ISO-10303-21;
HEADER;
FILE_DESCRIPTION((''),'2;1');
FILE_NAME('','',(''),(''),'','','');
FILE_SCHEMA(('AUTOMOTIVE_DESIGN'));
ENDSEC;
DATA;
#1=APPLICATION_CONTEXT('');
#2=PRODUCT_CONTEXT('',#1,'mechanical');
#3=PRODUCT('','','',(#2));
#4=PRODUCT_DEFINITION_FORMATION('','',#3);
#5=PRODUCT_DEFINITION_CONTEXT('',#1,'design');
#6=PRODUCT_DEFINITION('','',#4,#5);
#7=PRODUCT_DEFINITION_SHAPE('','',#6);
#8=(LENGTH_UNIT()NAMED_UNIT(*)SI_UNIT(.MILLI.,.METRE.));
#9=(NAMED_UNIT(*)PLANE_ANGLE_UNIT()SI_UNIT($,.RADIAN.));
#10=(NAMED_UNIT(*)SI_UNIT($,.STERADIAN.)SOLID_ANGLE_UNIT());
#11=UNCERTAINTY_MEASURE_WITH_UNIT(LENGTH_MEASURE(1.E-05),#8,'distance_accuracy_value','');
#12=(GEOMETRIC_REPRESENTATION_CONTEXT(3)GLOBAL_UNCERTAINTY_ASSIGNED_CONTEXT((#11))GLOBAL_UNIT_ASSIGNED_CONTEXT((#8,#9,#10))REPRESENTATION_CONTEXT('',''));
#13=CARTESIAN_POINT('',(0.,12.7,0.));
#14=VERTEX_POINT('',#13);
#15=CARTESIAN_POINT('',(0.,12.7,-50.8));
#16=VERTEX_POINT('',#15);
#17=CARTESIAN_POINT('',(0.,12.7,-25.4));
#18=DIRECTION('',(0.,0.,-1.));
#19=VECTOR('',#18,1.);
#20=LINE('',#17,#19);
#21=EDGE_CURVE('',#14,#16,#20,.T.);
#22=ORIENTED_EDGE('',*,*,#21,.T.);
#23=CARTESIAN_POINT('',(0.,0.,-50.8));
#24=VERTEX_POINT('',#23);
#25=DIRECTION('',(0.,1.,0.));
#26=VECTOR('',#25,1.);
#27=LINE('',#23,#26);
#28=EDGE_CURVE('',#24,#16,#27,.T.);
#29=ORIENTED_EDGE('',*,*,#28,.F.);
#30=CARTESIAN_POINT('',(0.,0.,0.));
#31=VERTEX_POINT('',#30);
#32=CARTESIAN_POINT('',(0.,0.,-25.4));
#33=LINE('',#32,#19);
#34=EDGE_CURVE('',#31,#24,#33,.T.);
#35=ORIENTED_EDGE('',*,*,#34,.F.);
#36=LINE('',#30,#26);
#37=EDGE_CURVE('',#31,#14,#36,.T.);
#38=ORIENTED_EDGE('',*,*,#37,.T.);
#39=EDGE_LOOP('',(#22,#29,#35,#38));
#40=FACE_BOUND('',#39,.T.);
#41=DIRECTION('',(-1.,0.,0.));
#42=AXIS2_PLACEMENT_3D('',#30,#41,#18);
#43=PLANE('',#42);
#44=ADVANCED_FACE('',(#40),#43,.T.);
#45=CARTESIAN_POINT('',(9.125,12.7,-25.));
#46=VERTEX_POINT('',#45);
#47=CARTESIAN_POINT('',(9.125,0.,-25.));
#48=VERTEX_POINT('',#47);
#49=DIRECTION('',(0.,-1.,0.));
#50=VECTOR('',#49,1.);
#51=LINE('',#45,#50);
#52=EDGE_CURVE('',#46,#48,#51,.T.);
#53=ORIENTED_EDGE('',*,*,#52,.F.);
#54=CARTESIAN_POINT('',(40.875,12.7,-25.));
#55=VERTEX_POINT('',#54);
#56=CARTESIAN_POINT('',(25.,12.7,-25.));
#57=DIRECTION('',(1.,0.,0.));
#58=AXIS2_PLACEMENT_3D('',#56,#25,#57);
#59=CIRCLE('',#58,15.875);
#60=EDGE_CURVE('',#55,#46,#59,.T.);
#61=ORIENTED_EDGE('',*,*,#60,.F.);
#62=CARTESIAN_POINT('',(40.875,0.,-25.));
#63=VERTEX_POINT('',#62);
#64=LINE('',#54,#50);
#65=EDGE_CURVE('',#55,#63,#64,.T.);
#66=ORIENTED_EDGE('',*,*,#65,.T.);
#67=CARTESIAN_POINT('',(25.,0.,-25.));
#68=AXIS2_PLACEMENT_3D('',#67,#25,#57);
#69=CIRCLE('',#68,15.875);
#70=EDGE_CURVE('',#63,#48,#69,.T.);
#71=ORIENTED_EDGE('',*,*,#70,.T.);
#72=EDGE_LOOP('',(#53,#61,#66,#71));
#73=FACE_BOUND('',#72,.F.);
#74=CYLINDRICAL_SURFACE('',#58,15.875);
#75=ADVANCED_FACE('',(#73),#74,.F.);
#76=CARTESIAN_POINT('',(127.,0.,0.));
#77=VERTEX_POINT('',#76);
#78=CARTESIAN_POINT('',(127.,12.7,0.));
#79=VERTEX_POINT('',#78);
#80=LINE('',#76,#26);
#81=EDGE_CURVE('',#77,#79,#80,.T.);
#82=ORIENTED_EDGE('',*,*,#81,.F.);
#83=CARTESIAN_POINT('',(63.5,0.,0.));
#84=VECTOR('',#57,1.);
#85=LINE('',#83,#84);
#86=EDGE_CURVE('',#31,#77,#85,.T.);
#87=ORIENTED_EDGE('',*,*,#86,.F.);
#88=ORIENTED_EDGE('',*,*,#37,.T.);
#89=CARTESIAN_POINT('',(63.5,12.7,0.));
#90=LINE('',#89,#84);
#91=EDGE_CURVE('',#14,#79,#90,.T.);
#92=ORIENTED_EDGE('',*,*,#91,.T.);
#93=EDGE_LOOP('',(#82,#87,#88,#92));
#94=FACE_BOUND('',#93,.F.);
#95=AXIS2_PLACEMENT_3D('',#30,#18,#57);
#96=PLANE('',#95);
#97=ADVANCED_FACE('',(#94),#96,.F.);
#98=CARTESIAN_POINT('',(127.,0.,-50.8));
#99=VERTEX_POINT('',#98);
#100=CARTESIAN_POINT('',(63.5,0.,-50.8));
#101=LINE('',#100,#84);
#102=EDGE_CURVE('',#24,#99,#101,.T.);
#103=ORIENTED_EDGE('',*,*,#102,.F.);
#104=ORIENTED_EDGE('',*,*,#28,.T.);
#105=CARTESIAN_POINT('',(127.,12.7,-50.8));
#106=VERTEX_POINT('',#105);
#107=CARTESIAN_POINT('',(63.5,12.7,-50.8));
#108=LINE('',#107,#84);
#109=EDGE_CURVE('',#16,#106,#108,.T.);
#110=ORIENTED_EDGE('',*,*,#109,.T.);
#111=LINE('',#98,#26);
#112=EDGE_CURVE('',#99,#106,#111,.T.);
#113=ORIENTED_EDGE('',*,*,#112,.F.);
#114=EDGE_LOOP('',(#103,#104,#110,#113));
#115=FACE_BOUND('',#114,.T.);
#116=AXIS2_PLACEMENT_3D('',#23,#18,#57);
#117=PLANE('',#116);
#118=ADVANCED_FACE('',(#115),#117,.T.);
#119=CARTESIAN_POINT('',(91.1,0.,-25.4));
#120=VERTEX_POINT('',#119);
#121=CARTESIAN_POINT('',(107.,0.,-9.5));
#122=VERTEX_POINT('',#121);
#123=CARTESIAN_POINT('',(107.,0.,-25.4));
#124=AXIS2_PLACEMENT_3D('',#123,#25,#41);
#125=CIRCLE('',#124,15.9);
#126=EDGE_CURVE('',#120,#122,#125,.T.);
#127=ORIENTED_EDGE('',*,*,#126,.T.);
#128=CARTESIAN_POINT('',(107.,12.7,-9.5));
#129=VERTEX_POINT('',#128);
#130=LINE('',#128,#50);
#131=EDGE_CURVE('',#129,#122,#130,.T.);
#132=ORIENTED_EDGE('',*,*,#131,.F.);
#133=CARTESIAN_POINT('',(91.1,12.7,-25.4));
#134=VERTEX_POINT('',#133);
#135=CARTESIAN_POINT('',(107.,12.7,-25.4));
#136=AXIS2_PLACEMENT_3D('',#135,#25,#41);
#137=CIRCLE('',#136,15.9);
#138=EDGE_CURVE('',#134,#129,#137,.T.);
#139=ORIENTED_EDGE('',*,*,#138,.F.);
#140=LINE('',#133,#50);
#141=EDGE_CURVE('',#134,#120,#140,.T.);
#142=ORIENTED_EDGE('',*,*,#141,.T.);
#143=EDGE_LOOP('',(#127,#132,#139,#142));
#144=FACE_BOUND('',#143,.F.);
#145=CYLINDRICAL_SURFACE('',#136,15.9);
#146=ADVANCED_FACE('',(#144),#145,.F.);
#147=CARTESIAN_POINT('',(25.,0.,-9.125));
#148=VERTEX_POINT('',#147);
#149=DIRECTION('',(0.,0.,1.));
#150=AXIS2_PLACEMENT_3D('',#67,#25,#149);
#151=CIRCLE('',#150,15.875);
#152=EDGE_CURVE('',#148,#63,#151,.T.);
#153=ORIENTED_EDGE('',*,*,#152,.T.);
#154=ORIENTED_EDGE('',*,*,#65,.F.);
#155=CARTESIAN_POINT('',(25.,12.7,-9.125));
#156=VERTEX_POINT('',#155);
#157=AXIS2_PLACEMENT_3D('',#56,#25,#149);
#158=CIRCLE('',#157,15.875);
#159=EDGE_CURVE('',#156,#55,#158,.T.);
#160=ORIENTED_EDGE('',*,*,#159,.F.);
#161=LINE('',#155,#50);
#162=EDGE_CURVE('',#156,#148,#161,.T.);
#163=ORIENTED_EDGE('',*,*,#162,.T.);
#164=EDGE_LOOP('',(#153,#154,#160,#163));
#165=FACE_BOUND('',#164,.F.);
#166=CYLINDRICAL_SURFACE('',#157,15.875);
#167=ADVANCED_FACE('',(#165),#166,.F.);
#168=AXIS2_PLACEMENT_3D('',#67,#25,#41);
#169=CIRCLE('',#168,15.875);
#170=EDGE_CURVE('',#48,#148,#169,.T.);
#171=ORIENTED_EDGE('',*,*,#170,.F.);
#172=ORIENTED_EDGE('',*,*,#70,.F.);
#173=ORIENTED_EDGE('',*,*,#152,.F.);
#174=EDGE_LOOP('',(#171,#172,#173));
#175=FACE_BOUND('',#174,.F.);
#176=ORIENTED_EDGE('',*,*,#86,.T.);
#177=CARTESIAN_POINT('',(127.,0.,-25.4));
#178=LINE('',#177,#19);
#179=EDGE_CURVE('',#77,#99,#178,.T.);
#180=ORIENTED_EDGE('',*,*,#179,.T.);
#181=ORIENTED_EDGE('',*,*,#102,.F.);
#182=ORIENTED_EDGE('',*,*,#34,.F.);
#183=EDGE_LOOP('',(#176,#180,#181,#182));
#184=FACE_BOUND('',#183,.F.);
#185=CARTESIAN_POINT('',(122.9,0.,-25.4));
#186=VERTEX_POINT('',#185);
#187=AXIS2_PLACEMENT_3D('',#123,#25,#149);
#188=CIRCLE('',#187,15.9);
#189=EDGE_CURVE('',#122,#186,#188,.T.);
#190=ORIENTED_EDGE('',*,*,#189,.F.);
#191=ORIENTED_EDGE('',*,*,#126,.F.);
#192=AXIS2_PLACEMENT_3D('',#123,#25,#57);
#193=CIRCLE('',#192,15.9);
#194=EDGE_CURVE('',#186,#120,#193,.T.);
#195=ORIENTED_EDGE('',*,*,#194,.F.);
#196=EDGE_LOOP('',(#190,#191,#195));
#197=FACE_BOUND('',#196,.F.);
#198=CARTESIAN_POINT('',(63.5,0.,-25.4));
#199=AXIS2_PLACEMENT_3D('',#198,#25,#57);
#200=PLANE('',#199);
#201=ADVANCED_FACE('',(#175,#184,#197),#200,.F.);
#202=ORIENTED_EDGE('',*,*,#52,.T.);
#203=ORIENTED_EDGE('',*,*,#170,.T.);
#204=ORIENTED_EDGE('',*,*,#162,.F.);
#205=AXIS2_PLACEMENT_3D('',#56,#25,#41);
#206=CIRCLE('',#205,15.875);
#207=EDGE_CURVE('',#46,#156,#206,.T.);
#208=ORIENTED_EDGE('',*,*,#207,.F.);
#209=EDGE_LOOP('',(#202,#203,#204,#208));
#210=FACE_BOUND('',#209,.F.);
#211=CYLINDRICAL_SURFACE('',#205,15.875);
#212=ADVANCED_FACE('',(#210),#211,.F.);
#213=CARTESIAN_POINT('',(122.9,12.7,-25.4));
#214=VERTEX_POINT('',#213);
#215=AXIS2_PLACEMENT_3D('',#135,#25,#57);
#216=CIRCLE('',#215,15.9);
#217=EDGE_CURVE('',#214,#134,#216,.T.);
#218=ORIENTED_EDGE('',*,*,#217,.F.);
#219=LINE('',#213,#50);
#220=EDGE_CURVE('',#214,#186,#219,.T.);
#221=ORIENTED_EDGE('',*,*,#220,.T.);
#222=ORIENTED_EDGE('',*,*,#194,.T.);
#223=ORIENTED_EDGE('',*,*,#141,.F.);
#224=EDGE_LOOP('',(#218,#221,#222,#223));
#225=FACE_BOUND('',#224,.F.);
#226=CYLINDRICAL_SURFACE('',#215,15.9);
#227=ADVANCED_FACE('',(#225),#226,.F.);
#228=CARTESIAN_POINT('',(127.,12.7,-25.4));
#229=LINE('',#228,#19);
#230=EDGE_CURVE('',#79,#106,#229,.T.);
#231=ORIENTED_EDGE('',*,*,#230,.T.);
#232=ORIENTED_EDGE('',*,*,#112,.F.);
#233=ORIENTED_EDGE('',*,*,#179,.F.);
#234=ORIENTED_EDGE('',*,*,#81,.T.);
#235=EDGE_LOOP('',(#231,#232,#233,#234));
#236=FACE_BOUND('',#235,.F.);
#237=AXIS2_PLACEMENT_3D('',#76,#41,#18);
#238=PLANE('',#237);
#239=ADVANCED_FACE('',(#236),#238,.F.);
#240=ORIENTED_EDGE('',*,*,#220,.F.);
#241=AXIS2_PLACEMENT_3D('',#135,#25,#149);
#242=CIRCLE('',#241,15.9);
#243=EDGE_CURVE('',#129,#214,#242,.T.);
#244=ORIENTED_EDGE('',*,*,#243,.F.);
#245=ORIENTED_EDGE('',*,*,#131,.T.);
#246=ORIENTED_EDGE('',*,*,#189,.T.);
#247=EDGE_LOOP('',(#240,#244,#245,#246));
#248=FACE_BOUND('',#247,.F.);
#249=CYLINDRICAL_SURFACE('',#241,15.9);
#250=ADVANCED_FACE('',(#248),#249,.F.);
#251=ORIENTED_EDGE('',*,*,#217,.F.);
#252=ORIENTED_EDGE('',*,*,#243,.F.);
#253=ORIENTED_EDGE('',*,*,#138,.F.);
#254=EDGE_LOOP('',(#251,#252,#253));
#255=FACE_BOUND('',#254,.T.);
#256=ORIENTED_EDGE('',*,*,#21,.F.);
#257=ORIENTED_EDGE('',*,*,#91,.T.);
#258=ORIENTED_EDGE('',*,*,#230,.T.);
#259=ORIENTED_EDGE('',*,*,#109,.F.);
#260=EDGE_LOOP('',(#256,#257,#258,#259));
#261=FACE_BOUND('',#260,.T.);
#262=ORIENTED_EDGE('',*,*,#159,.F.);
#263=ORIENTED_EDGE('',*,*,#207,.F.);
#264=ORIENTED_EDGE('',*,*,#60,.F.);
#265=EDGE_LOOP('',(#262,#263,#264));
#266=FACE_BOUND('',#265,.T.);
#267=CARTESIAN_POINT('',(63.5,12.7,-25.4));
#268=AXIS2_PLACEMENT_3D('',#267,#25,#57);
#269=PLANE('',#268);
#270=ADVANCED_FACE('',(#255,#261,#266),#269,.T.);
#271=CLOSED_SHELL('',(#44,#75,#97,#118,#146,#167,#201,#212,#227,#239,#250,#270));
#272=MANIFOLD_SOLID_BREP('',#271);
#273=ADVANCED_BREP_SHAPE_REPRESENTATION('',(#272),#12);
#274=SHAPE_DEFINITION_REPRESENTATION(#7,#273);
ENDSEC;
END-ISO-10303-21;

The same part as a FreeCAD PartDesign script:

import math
import FreeCAD as App
import Part
import Sketcher
from FreeCAD import Vector
Q = App.Units.Quantity


def add_polygon(sketch, points):
    """Adds a closed chain of lines whose ends are joined by coincident constraints."""
    first, n = sketch.GeometryCount, len(points)
    for a, b in zip(points, points[1:] + points[:1]):
        sketch.addGeometry(Part.LineSegment(App.Vector(*a, 0), App.Vector(*b, 0)), False)
    for i in range(n):
        sketch.addConstraint(Sketcher.Constraint("Coincident", first + i, 2, first + (i + 1) % n, 1))

doc = App.newDocument("Part")
params = doc.addObject("Spreadsheet::Sheet", "Params")
for row, (alias, value) in enumerate([
    ("sketch1_width", "5 in"),
    ("sketch1_height", "2 in"),
    ("pad1_length", "0.5 in"),
    ("sketch2_radius", "0.625 in"),
    ("pocket1_length", "0.5 in"),
], start=1):
    params.set(f"A{row}", alias)
    params.set(f"B{row}", "=" + value)
    params.setAlias(f"B{row}", alias)

body = doc.addObject("PartDesign::Body", "Body")

sketch1 = body.newObject("Sketcher::SketchObject", "Sketch")
sketch1.AttachmentSupport = (doc.getObject("XZ_Plane"), [""])
sketch1.MapMode = "FlatFace"
add_polygon(sketch1, [(0, -51), (0, 0), (127, 0), (127, -51)])
sketch1.addConstraint([
    Sketcher.Constraint("Vertical", 0),
    Sketcher.Constraint("Horizontal", 1),
    Sketcher.Constraint("Vertical", 2),
    Sketcher.Constraint("Horizontal", 3),
    Sketcher.Constraint("Coincident", 0, 2, -1, 1),
    Sketcher.Constraint("DistanceX", 1, 1, 1, 2, Q("5 in")),
    Sketcher.Constraint("DistanceY", 0, 1, 0, 2, Q("2 in")),
])
sketch1.setExpression("Constraints[9]", "Params.sketch1_width")
sketch1.setExpression("Constraints[10]", "Params.sketch1_height")
pad1 = body.newObject("PartDesign::Pad", "Pad")
pad1.Profile = sketch1
pad1.setExpression("Length", "Params.pad1_length")
pad1.Reversed = True

sketch2 = body.newObject("Sketcher::SketchObject", "Sketch001")
sketch2.AttachmentSupport = (doc.getObject("XZ_Plane"), [""])
sketch2.MapMode = "FlatFace"
sketch2.AttachmentOffset = App.Placement(Vector(0, 0, -0.5 * 25.4), App.Rotation())
sketch2.addGeometry([
    Part.ArcOfCircle(Part.Circle(Vector(25, -25, 0), Vector(0, 0, 1), 16), math.radians(90), math.radians(180)),
    Part.ArcOfCircle(Part.Circle(Vector(25, -25, 0), Vector(0, 0, 1), 16), math.radians(0), math.radians(90)),
    Part.ArcOfCircle(Part.Circle(Vector(25, -25, 0), Vector(0, 0, 1), 16), math.radians(180), math.radians(360)),
], False)
sketch2.addConstraint([
    Sketcher.Constraint("Tangent", 0, 1, 1, 2),
    Sketcher.Constraint("Tangent", 1, 1, 2, 2),
    Sketcher.Constraint("Tangent", 2, 1, 0, 2),
    Sketcher.Constraint("Horizontal", 2, 3, 1, 1),
    Sketcher.Constraint("Horizontal", 1, 1, 2, 1),
    Sketcher.Constraint("Vertical", 2, 3, 0, 1),
    Sketcher.Constraint("Radius", 0, Q("0.625 in")),
    Sketcher.Constraint("DistanceX", -1, 1, 0, 3, 25.0),
    Sketcher.Constraint("DistanceY", 0, 3, -1, 1, 25.0),
])
sketch2.setExpression("Constraints[6]", "Params.sketch2_radius")
pocket1 = body.newObject("PartDesign::Pocket", "Pocket")
pocket1.Profile = sketch2
pocket1.setExpression("Length", "Params.pocket1_length")
pocket1.Reversed = True

sketch3 = body.newObject("Sketcher::SketchObject", "Sketch002")
sketch3.AttachmentSupport = (doc.getObject("XZ_Plane"), [""])
sketch3.MapMode = "FlatFace"
sketch3.AttachmentOffset = App.Placement(Vector(0, 0, -0.5 * 25.4), App.Rotation())
sketch3.addGeometry([
    Part.ArcOfCircle(Part.Circle(Vector(107, -25, 0), Vector(0, 0, 1), 16), math.radians(90), math.radians(180)),
    Part.ArcOfCircle(Part.Circle(Vector(107, -25, 0), Vector(0, 0, 1), 16), math.radians(0), math.radians(90)),
    Part.ArcOfCircle(Part.Circle(Vector(107, -25, 0), Vector(0, 0, 1), 16), math.radians(180), math.radians(360)),
], False)
sketch3.addConstraint([
    Sketcher.Constraint("Tangent", 0, 1, 1, 2),
    Sketcher.Constraint("Tangent", 1, 1, 2, 2),
    Sketcher.Constraint("Tangent", 2, 1, 0, 2),
    Sketcher.Constraint("Horizontal", 2, 3, 1, 1),
    Sketcher.Constraint("Horizontal", 1, 1, 2, 1),
    Sketcher.Constraint("Vertical", 2, 3, 0, 1),
    Sketcher.Constraint("DistanceY", 0, 3, -1, 1, Q("1 in")),
    Sketcher.Constraint("Radius", 0, 15.9),
    Sketcher.Constraint("DistanceX", -1, 1, 0, 3, 107.0),
])
pocket2 = body.newObject("PartDesign::Pocket", "Pocket001")
pocket2.Profile = sketch3
pocket2.Type = "ThroughAll"
pocket2.Reversed = True

doc.recompute()
